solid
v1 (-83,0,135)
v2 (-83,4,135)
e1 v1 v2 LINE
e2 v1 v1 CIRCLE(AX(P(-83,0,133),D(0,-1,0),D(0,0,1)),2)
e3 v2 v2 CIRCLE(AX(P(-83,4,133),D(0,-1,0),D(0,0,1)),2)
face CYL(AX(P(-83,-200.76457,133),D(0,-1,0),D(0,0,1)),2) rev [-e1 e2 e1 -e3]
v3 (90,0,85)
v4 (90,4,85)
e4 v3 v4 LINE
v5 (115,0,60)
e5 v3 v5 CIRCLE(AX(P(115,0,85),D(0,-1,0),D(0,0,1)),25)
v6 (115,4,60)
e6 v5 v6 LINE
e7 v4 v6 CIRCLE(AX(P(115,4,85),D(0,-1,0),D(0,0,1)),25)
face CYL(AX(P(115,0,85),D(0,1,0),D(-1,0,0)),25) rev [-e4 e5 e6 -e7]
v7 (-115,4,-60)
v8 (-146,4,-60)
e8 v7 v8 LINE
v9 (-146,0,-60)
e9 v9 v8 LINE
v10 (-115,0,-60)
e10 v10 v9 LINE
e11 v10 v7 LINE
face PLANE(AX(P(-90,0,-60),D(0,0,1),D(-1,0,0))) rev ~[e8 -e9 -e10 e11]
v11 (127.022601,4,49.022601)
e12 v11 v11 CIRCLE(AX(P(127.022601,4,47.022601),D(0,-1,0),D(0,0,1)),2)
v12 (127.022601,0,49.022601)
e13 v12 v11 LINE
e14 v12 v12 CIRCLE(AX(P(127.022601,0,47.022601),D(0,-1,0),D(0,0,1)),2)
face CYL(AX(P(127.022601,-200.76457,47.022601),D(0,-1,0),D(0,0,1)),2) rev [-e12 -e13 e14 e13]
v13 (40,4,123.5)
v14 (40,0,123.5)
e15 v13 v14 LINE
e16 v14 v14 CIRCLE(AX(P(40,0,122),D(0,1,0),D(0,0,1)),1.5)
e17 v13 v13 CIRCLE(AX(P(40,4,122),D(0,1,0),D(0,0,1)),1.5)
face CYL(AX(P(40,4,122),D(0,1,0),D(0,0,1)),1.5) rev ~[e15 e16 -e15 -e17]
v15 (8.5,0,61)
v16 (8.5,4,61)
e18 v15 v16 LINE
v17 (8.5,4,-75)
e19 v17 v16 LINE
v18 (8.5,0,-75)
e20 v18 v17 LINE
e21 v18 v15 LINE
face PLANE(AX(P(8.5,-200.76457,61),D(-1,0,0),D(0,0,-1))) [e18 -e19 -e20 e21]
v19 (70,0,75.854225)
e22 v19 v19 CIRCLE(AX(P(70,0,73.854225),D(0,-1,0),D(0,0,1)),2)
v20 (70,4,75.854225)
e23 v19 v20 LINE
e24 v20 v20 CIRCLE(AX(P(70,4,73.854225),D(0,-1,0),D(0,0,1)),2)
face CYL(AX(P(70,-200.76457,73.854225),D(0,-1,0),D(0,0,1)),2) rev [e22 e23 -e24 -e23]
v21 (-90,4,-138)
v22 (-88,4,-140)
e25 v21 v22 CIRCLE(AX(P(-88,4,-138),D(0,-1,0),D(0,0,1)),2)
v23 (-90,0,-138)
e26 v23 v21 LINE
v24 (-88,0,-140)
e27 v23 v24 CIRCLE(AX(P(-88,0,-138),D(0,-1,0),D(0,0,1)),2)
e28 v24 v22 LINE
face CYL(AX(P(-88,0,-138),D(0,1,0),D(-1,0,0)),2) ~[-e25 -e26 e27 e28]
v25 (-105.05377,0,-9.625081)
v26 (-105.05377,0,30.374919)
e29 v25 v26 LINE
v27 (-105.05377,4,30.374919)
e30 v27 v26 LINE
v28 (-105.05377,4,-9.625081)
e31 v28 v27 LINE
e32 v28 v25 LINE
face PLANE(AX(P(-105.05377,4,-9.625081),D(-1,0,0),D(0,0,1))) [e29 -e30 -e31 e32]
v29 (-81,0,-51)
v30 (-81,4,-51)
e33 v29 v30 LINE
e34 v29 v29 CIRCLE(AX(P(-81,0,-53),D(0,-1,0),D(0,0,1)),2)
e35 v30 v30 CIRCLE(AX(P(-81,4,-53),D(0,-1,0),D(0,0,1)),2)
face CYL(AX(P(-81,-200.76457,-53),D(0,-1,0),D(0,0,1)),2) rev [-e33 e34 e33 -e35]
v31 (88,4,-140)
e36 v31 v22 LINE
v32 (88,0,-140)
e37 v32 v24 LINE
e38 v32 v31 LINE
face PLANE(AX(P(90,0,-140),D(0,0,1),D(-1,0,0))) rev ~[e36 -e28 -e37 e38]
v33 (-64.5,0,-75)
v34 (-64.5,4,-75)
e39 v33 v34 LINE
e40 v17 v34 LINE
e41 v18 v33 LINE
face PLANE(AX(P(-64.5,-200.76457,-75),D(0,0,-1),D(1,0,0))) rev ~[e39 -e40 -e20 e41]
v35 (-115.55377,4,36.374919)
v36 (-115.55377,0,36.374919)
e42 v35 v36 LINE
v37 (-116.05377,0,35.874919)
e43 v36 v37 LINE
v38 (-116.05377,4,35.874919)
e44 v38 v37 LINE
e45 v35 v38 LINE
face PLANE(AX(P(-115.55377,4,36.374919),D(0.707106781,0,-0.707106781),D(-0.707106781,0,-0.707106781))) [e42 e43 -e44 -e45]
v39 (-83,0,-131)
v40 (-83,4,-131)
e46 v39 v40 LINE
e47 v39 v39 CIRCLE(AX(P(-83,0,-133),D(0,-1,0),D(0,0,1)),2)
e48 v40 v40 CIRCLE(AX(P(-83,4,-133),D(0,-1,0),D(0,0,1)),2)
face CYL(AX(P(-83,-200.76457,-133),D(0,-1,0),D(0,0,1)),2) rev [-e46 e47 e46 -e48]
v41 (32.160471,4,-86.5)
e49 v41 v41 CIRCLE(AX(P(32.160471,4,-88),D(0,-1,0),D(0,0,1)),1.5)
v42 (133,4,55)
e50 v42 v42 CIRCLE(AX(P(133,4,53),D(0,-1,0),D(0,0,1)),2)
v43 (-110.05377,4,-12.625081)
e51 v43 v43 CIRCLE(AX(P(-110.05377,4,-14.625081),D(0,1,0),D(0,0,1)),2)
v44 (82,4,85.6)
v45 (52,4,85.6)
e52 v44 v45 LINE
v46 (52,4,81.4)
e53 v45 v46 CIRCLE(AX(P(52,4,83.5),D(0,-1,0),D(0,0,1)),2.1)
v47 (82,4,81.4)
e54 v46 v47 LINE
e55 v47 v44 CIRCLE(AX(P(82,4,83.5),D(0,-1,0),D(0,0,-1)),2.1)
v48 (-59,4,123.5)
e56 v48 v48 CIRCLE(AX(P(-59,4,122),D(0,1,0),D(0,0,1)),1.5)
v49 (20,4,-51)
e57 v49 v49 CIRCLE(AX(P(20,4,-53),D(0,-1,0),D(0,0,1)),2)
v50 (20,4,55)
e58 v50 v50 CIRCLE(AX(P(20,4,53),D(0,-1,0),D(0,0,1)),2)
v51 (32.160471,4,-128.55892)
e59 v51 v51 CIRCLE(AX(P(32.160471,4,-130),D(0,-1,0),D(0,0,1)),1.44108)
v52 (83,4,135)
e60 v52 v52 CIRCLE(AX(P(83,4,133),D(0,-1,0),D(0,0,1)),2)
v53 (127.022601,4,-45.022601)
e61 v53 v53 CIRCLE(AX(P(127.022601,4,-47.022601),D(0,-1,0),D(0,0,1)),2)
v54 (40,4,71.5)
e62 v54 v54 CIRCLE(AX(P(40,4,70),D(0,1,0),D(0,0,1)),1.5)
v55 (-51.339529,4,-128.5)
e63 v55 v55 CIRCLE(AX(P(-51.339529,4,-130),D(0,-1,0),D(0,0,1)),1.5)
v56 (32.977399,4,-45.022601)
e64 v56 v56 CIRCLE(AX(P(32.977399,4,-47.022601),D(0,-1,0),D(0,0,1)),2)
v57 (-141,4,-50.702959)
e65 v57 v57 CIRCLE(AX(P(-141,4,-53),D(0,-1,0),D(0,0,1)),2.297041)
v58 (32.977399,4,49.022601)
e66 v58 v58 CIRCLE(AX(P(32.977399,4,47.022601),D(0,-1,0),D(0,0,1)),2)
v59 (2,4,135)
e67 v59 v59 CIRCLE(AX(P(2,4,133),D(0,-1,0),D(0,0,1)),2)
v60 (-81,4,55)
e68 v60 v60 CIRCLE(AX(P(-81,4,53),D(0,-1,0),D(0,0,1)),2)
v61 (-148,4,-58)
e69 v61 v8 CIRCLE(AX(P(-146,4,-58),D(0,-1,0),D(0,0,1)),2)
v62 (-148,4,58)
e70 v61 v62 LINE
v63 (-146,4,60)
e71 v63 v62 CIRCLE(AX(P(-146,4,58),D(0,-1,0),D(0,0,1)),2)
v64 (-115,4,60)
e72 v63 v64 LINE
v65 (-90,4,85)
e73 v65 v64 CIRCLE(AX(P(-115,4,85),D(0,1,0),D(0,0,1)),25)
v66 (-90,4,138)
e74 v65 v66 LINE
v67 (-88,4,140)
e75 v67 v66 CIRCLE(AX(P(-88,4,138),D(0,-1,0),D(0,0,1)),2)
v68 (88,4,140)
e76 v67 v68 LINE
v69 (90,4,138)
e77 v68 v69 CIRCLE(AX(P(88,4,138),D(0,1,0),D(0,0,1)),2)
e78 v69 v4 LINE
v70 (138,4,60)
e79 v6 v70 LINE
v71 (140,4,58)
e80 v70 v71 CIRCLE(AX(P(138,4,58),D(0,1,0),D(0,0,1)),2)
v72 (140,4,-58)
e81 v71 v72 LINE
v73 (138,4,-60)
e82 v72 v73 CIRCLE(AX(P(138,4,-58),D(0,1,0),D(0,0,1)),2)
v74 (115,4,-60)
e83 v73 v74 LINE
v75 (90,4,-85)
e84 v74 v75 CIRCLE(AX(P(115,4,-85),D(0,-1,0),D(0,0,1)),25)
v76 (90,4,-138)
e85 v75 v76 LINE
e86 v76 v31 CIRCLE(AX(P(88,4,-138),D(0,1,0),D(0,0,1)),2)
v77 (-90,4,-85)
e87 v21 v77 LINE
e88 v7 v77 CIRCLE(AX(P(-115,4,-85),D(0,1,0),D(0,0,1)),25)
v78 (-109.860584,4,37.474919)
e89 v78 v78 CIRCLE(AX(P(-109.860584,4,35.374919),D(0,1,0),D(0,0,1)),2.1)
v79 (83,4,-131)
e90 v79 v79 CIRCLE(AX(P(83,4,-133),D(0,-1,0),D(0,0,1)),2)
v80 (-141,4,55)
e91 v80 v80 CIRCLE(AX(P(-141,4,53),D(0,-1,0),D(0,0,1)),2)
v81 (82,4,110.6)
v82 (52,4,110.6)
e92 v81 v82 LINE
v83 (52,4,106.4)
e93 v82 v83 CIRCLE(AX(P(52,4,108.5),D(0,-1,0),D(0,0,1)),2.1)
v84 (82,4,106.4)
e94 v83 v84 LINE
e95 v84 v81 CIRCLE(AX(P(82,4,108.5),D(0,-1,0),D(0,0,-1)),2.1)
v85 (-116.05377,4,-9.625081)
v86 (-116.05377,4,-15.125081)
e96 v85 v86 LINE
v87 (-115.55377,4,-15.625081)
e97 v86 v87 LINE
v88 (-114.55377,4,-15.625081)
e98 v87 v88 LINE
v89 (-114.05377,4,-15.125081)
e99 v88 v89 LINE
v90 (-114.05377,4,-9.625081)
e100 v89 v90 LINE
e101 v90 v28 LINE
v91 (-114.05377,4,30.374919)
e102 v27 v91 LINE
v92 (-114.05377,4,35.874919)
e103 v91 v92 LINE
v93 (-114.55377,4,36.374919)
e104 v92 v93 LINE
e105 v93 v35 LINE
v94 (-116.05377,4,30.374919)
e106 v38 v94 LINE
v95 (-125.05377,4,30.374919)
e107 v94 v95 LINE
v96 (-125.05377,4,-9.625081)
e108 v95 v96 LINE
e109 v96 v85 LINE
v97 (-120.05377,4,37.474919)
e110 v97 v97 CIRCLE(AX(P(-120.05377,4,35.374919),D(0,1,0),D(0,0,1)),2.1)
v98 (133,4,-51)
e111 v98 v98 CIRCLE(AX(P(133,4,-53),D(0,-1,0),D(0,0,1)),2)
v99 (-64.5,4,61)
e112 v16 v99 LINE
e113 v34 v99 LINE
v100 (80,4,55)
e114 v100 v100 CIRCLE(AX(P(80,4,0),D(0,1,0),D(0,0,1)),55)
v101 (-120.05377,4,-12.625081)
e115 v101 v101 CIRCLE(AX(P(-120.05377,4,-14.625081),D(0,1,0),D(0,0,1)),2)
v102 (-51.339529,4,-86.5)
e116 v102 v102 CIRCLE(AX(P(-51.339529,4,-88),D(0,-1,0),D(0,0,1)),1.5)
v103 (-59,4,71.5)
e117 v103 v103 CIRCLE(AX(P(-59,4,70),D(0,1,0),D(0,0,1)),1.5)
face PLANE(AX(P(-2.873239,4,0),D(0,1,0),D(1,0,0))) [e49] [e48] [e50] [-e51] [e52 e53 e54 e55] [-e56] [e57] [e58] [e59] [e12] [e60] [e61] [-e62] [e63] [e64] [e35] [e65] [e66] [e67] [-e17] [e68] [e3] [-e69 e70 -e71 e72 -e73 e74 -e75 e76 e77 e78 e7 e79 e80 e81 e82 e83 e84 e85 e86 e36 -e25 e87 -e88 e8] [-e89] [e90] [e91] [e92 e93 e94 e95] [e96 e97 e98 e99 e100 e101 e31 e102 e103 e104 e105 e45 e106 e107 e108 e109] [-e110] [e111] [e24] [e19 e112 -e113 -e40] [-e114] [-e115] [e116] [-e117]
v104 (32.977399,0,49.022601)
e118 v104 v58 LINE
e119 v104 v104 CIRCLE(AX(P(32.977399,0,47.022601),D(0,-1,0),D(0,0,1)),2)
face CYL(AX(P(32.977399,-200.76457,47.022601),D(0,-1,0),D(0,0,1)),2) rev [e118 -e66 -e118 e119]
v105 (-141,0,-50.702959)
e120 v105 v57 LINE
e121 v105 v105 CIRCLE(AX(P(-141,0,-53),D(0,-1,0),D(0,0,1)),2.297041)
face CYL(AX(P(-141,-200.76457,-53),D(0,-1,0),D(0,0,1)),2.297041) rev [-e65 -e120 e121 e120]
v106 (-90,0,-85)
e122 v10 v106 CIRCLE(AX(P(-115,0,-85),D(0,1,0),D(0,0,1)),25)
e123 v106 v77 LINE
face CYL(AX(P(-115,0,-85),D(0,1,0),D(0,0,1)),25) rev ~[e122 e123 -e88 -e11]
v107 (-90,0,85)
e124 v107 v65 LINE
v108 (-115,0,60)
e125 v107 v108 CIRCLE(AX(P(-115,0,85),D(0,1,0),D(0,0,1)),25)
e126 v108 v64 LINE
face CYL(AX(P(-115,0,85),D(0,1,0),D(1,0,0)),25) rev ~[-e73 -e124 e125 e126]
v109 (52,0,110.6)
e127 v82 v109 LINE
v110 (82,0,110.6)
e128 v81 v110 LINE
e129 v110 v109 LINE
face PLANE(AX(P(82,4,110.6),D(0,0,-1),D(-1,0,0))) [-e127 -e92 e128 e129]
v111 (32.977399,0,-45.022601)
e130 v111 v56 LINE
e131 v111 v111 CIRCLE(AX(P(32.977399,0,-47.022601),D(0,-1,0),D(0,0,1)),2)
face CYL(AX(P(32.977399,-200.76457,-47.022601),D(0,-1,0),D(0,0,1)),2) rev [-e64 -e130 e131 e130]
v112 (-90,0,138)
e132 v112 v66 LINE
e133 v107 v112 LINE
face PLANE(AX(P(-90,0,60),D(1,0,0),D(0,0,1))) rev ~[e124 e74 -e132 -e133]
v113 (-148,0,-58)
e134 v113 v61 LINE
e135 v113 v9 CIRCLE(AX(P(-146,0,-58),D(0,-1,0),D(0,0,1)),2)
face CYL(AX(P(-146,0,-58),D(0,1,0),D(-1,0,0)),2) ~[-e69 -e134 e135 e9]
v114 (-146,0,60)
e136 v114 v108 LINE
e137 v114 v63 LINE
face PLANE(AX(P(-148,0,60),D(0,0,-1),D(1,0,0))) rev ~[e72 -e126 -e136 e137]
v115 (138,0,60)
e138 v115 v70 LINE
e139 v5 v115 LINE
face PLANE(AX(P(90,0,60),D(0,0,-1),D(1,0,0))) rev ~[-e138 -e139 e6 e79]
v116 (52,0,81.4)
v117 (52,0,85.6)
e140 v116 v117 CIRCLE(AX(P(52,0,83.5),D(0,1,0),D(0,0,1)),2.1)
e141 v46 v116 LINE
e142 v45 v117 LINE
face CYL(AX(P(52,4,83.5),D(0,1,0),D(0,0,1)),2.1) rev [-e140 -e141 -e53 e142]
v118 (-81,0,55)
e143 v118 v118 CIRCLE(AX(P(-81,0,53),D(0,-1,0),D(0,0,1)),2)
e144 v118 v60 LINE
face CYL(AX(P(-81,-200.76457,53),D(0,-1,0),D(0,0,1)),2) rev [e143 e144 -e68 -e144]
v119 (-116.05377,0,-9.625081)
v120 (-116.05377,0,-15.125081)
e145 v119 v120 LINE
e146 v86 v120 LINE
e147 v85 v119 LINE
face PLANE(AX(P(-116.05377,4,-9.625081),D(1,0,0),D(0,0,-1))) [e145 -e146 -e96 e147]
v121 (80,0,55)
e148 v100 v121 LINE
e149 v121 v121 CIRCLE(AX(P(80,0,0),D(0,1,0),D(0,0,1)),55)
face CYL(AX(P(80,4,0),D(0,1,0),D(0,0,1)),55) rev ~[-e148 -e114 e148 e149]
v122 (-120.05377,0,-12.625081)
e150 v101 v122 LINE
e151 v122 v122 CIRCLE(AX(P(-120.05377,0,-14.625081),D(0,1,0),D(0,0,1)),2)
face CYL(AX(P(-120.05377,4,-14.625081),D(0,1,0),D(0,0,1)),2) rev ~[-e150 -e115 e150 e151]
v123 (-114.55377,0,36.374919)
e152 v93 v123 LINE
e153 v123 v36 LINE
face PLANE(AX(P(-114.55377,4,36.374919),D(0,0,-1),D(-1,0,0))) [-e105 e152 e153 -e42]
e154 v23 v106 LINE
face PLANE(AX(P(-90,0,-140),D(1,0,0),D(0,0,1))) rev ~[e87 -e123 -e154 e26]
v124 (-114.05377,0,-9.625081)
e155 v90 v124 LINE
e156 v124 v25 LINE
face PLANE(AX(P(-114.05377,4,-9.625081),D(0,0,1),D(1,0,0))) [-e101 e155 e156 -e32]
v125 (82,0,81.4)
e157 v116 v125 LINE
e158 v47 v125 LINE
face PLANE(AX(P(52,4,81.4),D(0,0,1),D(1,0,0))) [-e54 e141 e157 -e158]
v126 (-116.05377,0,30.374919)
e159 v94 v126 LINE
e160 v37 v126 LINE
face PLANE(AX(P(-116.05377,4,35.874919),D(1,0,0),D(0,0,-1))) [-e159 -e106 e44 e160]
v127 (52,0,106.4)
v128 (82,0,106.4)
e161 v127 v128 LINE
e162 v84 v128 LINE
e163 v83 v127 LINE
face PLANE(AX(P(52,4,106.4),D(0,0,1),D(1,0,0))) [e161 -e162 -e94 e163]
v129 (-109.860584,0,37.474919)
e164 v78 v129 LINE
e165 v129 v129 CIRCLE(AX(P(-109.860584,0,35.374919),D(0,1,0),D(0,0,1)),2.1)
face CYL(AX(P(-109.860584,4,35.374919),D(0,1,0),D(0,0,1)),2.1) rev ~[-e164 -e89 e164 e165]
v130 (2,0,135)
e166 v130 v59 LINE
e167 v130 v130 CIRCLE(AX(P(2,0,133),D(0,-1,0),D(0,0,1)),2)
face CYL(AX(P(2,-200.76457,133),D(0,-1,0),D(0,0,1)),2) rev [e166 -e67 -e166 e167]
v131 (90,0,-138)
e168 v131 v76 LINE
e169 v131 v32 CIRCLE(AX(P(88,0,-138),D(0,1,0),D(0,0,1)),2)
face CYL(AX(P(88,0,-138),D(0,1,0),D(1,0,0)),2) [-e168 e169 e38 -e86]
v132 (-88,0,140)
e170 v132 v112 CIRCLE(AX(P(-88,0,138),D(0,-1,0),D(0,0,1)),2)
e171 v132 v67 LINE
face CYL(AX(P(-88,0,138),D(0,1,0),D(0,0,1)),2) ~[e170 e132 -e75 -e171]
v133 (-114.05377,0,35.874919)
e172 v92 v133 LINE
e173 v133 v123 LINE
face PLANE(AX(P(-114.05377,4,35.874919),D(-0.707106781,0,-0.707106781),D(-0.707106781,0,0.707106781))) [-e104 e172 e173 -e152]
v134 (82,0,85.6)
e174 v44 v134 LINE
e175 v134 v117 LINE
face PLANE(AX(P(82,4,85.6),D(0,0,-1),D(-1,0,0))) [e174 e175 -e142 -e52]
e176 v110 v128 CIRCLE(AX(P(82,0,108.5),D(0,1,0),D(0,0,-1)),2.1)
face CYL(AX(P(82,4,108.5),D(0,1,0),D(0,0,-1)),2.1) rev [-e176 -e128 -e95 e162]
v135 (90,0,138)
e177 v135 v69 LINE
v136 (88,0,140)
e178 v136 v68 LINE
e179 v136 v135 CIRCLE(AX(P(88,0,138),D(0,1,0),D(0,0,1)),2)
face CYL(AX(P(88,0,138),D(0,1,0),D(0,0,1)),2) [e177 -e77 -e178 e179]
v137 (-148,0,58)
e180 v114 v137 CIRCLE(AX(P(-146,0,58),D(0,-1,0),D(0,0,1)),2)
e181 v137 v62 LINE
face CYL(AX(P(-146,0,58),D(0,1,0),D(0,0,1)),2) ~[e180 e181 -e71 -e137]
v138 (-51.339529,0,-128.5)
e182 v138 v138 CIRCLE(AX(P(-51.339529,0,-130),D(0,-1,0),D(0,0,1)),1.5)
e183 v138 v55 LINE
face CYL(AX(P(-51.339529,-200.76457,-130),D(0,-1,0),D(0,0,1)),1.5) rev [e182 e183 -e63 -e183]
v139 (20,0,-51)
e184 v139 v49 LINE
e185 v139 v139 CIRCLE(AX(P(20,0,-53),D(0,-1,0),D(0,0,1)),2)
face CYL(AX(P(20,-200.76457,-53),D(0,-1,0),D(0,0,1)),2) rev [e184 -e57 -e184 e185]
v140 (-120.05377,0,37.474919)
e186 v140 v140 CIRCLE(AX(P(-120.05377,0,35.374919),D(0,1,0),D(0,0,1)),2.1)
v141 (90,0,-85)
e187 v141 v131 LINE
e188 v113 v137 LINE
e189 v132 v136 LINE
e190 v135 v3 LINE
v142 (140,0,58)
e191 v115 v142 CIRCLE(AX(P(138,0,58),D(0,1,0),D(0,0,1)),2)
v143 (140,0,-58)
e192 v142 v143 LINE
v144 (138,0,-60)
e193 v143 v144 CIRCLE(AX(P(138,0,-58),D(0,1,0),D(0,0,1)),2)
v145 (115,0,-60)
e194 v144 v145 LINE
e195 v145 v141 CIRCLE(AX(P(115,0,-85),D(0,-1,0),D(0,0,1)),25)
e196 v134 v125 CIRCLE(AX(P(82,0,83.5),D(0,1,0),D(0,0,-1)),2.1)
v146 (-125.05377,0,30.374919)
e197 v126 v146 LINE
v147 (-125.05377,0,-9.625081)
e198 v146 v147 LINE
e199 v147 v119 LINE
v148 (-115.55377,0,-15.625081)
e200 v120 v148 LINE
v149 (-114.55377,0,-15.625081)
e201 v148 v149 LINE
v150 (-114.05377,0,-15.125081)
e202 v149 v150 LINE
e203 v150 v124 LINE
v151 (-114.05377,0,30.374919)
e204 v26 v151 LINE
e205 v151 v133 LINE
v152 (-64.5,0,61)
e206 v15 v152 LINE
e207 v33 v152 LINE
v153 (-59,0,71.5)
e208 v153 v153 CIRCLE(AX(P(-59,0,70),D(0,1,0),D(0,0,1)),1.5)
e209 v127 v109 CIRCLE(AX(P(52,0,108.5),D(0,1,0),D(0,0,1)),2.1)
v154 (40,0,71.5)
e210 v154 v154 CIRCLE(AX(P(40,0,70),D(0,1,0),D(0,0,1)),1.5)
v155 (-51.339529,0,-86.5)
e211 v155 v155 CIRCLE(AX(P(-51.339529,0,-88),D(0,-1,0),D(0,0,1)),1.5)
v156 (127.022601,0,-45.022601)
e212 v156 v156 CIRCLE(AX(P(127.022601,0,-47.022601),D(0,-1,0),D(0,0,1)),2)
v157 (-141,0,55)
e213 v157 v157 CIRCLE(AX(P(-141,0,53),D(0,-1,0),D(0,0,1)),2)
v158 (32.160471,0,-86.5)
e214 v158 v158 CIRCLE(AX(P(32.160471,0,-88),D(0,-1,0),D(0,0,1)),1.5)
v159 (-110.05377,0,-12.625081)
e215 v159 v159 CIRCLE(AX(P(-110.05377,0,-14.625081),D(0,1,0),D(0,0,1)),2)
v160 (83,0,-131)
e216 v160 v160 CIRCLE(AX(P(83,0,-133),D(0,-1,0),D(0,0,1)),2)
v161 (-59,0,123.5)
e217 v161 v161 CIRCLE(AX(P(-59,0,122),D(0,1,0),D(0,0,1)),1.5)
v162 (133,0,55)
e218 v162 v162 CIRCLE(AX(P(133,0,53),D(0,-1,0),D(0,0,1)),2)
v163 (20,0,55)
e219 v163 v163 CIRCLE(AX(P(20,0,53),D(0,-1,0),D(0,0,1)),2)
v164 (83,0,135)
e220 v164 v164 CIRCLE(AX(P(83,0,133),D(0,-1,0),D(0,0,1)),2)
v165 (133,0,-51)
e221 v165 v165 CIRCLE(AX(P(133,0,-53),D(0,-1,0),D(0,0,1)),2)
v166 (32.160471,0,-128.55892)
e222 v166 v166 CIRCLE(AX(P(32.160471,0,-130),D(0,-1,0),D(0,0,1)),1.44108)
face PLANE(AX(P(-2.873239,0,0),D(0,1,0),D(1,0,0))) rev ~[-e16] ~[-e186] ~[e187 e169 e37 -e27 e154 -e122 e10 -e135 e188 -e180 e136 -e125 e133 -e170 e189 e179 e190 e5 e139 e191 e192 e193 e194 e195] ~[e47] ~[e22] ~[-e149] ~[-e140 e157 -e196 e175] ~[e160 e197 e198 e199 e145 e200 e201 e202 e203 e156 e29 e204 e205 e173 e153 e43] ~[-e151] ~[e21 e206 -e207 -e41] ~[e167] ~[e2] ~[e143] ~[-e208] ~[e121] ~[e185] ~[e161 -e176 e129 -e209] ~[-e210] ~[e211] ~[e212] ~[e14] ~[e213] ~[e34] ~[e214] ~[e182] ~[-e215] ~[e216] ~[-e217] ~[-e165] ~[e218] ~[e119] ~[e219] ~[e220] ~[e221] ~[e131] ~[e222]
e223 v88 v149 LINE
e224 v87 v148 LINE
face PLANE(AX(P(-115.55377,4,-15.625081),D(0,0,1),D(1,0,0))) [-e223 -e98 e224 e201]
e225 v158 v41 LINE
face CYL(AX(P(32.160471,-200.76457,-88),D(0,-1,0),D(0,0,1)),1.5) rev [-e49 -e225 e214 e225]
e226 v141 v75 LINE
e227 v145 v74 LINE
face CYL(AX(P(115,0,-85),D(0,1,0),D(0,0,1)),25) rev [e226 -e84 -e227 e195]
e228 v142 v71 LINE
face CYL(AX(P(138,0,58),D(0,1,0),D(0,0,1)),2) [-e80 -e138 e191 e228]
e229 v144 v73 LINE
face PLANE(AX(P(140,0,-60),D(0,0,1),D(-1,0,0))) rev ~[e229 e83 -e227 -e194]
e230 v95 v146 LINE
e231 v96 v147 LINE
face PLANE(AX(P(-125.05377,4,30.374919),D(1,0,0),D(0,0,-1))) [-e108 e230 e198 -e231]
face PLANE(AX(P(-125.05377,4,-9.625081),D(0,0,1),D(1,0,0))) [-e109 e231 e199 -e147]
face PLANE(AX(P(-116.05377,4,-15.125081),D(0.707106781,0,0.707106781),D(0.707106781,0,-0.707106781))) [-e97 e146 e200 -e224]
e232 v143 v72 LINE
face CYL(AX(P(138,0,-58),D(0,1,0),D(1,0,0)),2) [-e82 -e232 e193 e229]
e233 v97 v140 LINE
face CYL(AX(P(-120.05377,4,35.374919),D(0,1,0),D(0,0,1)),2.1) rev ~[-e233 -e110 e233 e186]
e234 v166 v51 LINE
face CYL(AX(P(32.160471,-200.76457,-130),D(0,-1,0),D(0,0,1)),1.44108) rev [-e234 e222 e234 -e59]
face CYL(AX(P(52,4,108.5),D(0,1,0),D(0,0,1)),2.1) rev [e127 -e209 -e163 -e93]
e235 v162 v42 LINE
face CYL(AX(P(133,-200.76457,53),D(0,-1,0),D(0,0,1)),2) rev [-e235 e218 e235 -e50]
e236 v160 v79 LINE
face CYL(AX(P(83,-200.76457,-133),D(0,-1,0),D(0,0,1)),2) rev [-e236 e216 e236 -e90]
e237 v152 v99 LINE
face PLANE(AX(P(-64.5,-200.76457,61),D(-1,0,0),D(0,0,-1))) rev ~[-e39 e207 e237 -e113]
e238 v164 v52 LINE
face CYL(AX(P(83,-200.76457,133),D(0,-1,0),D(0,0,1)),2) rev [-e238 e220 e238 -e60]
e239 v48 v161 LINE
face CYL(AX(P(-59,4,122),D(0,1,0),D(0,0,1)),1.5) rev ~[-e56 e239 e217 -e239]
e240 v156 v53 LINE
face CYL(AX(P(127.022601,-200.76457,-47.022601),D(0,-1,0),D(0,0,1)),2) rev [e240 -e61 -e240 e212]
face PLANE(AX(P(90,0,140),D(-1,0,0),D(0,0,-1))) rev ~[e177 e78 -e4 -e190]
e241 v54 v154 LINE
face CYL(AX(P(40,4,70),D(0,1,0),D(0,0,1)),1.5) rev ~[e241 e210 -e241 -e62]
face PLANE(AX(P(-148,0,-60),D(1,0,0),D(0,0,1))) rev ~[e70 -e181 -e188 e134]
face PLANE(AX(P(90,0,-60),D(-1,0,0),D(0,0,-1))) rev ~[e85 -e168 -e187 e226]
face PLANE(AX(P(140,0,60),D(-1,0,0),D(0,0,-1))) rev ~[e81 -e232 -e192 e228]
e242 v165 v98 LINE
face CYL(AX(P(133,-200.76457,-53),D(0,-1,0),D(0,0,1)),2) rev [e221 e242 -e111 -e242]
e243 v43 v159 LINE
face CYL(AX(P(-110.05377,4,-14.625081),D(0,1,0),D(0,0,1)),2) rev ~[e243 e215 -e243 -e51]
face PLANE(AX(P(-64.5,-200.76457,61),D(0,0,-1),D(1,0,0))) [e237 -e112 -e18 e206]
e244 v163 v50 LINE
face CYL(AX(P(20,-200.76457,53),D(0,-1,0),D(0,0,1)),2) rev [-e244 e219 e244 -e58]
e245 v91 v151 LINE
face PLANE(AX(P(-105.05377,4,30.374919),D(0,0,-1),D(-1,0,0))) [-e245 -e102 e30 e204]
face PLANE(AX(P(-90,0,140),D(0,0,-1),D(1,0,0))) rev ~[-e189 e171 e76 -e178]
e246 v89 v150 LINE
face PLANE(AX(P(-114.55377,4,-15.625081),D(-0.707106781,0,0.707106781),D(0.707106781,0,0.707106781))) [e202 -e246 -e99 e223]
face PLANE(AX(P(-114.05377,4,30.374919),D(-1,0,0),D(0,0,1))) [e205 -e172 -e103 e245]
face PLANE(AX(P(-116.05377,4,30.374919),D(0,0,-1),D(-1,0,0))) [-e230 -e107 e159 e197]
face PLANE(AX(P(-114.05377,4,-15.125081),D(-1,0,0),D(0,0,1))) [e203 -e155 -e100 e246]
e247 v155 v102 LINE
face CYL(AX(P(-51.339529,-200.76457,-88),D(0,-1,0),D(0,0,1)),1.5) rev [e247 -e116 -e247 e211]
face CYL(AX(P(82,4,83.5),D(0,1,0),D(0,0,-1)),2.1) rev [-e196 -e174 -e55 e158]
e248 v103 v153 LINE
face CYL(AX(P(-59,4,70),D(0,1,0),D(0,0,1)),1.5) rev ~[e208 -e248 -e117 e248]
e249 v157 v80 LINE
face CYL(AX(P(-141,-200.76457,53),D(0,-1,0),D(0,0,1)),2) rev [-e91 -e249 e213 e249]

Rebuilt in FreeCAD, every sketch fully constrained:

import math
import FreeCAD as App
import Part
import Sketcher


def edges_at(feature, points):
    """Names of the edges that pass closest to the given points."""
    edges = feature.Shape.Edges
    near = lambda p: min(range(len(edges)), key=lambda i: edges[i].distToShape(Part.Vertex(*p))[0])
    return sorted({f"Edge{near(p) + 1}" for p in points})

doc = App.newDocument("Part")
body = doc.addObject("PartDesign::Body", "Body")

sketch1 = body.newObject("Sketcher::SketchObject", "Sketch")
sketch1.AttachmentSupport = (doc.getObject("XZ_Plane"), [""])
sketch1.MapMode = "FlatFace"
sketch1.addGeometry([
    Part.LineSegment(App.Vector(-90, 140, 0), App.Vector(90, 140, 0)),
    Part.LineSegment(App.Vector(90, 140, 0), App.Vector(90, 60, 0)),
    Part.LineSegment(App.Vector(90, 60, 0), App.Vector(140, 60, 0)),
    Part.LineSegment(App.Vector(140, 60, 0), App.Vector(140, -60, 0)),
    Part.LineSegment(App.Vector(140, -60, 0), App.Vector(90, -60, 0)),
    Part.LineSegment(App.Vector(90, -60, 0), App.Vector(90, -140, 0)),
    Part.LineSegment(App.Vector(90, -140, 0), App.Vector(-90, -140, 0)),
    Part.LineSegment(App.Vector(-90, -140, 0), App.Vector(-90, -60, 0)),
    Part.LineSegment(App.Vector(-90, -60, 0), App.Vector(-148, -60, 0)),
    Part.LineSegment(App.Vector(-148, -60, 0), App.Vector(-148, 60, 0)),
    Part.LineSegment(App.Vector(-148, 60, 0), App.Vector(-90, 60, 0)),
    Part.LineSegment(App.Vector(-90, 60, 0), App.Vector(-90, 140, 0)),
], False)
sketch1.addConstraint([
    Sketcher.Constraint("Coincident", 0, 2, 1, 1),
    Sketcher.Constraint("Coincident", 1, 2, 2, 1),
    Sketcher.Constraint("Coincident", 2, 2, 3, 1),
    Sketcher.Constraint("Coincident", 3, 2, 4, 1),
    Sketcher.Constraint("Coincident", 4, 2, 5, 1),
    Sketcher.Constraint("Coincident", 5, 2, 6, 1),
    Sketcher.Constraint("Coincident", 6, 2, 7, 1),
    Sketcher.Constraint("Coincident", 7, 2, 8, 1),
    Sketcher.Constraint("Coincident", 8, 2, 9, 1),
    Sketcher.Constraint("Coincident", 9, 2, 10, 1),
    Sketcher.Constraint("Coincident", 10, 2, 11, 1),
    Sketcher.Constraint("Coincident", 11, 2, 0, 1),
    Sketcher.Constraint("Horizontal", 0),
    Sketcher.Constraint("Vertical", 1),
    Sketcher.Constraint("Horizontal", 2),
    Sketcher.Constraint("Vertical", 3),
    Sketcher.Constraint("Horizontal", 4),
    Sketcher.Constraint("Vertical", 5),
    Sketcher.Constraint("Horizontal", 6),
    Sketcher.Constraint("Vertical", 7),
    Sketcher.Constraint("Horizontal", 8),
    Sketcher.Constraint("Vertical", 9),
    Sketcher.Constraint("Horizontal", 10),
    Sketcher.Constraint("Vertical", 11),
    Sketcher.Constraint("Symmetric", 0, 2, 6, 2, -1, 1),
    Sketcher.Constraint("Symmetric", 4, 2, 10, 2, -1, 1),
    Sketcher.Constraint("Symmetric", 4, 2, 7, 2, -2),
    Sketcher.Constraint("Horizontal", 2, 2, 9, 2),
    Sketcher.Constraint("DistanceX", 0, 1, 0, 2, 180.0),
    Sketcher.Constraint("DistanceX", 2, 1, 2, 2, 50.0),
    Sketcher.Constraint("DistanceX", 8, 2, 8, 1, 58.0),
    Sketcher.Constraint("DistanceY", 1, 2, 1, 1, 80.0),
    Sketcher.Constraint("DistanceY", 3, 2, 3, 1, 120.0),
])
pad1 = body.newObject("PartDesign::Pad", "Pad")
pad1.Profile = sketch1
pad1.Length = 4
pad1.Reversed = True

sketch2 = body.newObject("Sketcher::SketchObject", "Sketch001")
sketch2.AttachmentSupport = (doc.getObject("XZ_Plane"), [""])
sketch2.MapMode = "FlatFace"
sketch2.AttachmentOffset = App.Placement(App.Vector(0, 0, -4), App.Rotation())
sketch2.addGeometry([
    Part.Circle(App.Vector(-83, 133, 0), App.Vector(0, 0, 1), 2),
    Part.Circle(App.Vector(83, 133, 0), App.Vector(0, 0, 1), 2),
    Part.Circle(App.Vector(-83, -133, 0), App.Vector(0, 0, 1), 2),
    Part.Circle(App.Vector(83, -133, 0), App.Vector(0, 0, 1), 2),
    Part.Circle(App.Vector(133, -53, 0), App.Vector(0, 0, 1), 2),
    Part.Circle(App.Vector(133, 53, 0), App.Vector(0, 0, 1), 2),
    Part.Circle(App.Vector(33, -47, 0), App.Vector(0, 0, 1), 2),
    Part.Circle(App.Vector(127, -47, 0), App.Vector(0, 0, 1), 2),
    Part.Circle(App.Vector(127, 47, 0), App.Vector(0, 0, 1), 2),
    Part.Circle(App.Vector(33, 47, 0), App.Vector(0, 0, 1), 2),
    Part.Circle(App.Vector(-141, -53, 0), App.Vector(0, 0, 1), 2.3),
    Part.Circle(App.Vector(-141, 53, 0), App.Vector(0, 0, 1), 2),
    Part.Circle(App.Vector(20, 53, 0), App.Vector(0, 0, 1), 2),
    Part.Circle(App.Vector(20, -53, 0), App.Vector(0, 0, 1), 2),
    Part.Circle(App.Vector(-81, -53, 0), App.Vector(0, 0, 1), 2),
    Part.Circle(App.Vector(-81, 53, 0), App.Vector(0, 0, 1), 2),
    Part.Circle(App.Vector(70, 73.9, 0), App.Vector(0, 0, 1), 2),
    Part.Circle(App.Vector(2, 133, 0), App.Vector(0, 0, 1), 2),
], False)
sketch2.addConstraint([
    Sketcher.Constraint("Equal", 0, 1),
    Sketcher.Constraint("Equal", 1, 2),
    Sketcher.Constraint("Equal", 2, 3),
    Sketcher.Constraint("Equal", 3, 4),
    Sketcher.Constraint("Equal", 4, 5),
    Sketcher.Constraint("Equal", 5, 6),
    Sketcher.Constraint("Equal", 6, 7),
    Sketcher.Constraint("Equal", 7, 8),
    Sketcher.Constraint("Equal", 8, 9),
    Sketcher.Constraint("Equal", 9, 11),
    Sketcher.Constraint("Equal", 11, 12),
    Sketcher.Constraint("Equal", 12, 13),
    Sketcher.Constraint("Equal", 13, 14),
    Sketcher.Constraint("Equal", 14, 15),
    Sketcher.Constraint("Equal", 15, 16),
    Sketcher.Constraint("Equal", 16, 17),
    Sketcher.Constraint("Symmetric", 1, 3, 2, 3, -1, 1),
    Sketcher.Constraint("Symmetric", 0, 3, 3, 3, -1, 1),
    Sketcher.Constraint("Symmetric", 0, 3, 1, 3, -2),
    Sketcher.Constraint("Symmetric", 4, 3, 5, 3, -1),
    Sketcher.Constraint("Symmetric", 7, 3, 8, 3, -1),
    Sketcher.Constraint("Symmetric", 6, 3, 9, 3, -1),
    Sketcher.Constraint("Symmetric", 10, 3, 11, 3, -1),
    Sketcher.Constraint("Symmetric", 12, 3, 13, 3, -1),
    Sketcher.Constraint("Symmetric", 14, 3, 15, 3, -1),
    Sketcher.Constraint("Horizontal", 6, 3, 7, 3),
    Sketcher.Constraint("Horizontal", 4, 3, 10, 3),
    Sketcher.Constraint("Horizontal", 11, 3, 12, 3),
    Sketcher.Constraint("Horizontal", 13, 3, 14, 3),
    Sketcher.Constraint("Horizontal", 1, 3, 17, 3),
    Sketcher.Constraint("Diameter", 0, 4.0),
    Sketcher.Constraint("DistanceX", 0, 3, -1, 1, 83.0),
    Sketcher.Constraint("DistanceY", -1, 1, 0, 3, 133.0),
    Sketcher.Constraint("DistanceX", -1, 1, 4, 3, 133.0),
    Sketcher.Constraint("DistanceY", 4, 3, -1, 1, 53.0),
    Sketcher.Constraint("DistanceX", 10, 3, -1, 1, 141.0),
    Sketcher.Constraint("DistanceX", -1, 1, 12, 3, 20.0),
    Sketcher.Constraint("DistanceX", 14, 3, -1, 1, 81.0),
    Sketcher.Constraint("DistanceX", -1, 1, 16, 3, 70.0),
    Sketcher.Constraint("DistanceX", -1, 1, 17, 3, 2.0),
    Sketcher.Constraint("Diameter", 10, 4.594083),
    Sketcher.Constraint("DistanceX", -1, 1, 6, 3, 32.977399),
    Sketcher.Constraint("DistanceY", 6, 3, -1, 1, 47.022601),
    Sketcher.Constraint("DistanceX", -1, 1, 7, 3, 127.022601),
    Sketcher.Constraint("DistanceY", -1, 1, 16, 3, 73.854225),
])
pocket1 = body.newObject("PartDesign::Pocket", "Pocket")
pocket1.Profile = sketch2
pocket1.Type = "ThroughAll"
pocket1.Midplane = True

sketch3 = body.newObject("Sketcher::SketchObject", "Sketch002")
sketch3.AttachmentSupport = (doc.getObject("XZ_Plane"), [""])
sketch3.MapMode = "FlatFace"
sketch3.AttachmentOffset = App.Placement(App.Vector(0, 0, -4), App.Rotation())
sketch3.addGeometry(Part.Circle(App.Vector(80, 0, 0), App.Vector(0, 0, 1), 55), False)
sketch3.addConstraint([
    Sketcher.Constraint("PointOnObject", 0, 3, -1),
    Sketcher.Constraint("Diameter", 0, 110.0),
    Sketcher.Constraint("DistanceX", -1, 1, 0, 3, 80.0),
])
pocket2 = body.newObject("PartDesign::Pocket", "Pocket001")
pocket2.Profile = sketch3
pocket2.Length = 10
pocket2.Reversed = True

sketch4 = body.newObject("Sketcher::SketchObject", "Sketch003")
sketch4.AttachmentSupport = (doc.getObject("XZ_Plane"), [""])
sketch4.MapMode = "FlatFace"
sketch4.AttachmentOffset = App.Placement(App.Vector(0, 0, -4), App.Rotation())
sketch4.addGeometry([
    Part.Circle(App.Vector(-110.1, -14.6, 0), App.Vector(0, 0, 1), 2),
    Part.Circle(App.Vector(-120.1, -14.6, 0), App.Vector(0, 0, 1), 2),
    Part.Circle(App.Vector(-120.1, 35.4, 0), App.Vector(0, 0, 1), 2.1),
    Part.Circle(App.Vector(-109.9, 35.4, 0), App.Vector(0, 0, 1), 2.1),
    Part.LineSegment(App.Vector(-105.1, 30.4, 0), App.Vector(-105.1, -9.6, 0)),
    Part.LineSegment(App.Vector(-105.1, -9.6, 0), App.Vector(-114.1, -9.6, 0)),
    Part.LineSegment(App.Vector(-114.1, -9.6, 0), App.Vector(-114.1, -15.1, 0)),
    Part.LineSegment(App.Vector(-114.1, -15.1, 0), App.Vector(-114.6, -15.6, 0)),
    Part.LineSegment(App.Vector(-114.6, -15.6, 0), App.Vector(-115.6, -15.6, 0)),
    Part.LineSegment(App.Vector(-115.6, -15.6, 0), App.Vector(-116.1, -15.1, 0)),
    Part.LineSegment(App.Vector(-116.1, -15.1, 0), App.Vector(-116.1, -9.6, 0)),
    Part.LineSegment(App.Vector(-116.1, -9.6, 0), App.Vector(-125.1, -9.6, 0)),
    Part.LineSegment(App.Vector(-125.1, -9.6, 0), App.Vector(-125.1, 30.4, 0)),
    Part.LineSegment(App.Vector(-125.1, 30.4, 0), App.Vector(-116.1, 30.4, 0)),
    Part.LineSegment(App.Vector(-116.1, 30.4, 0), App.Vector(-116.1, 35.9, 0)),
    Part.LineSegment(App.Vector(-116.1, 35.9, 0), App.Vector(-115.6, 36.4, 0)),
    Part.LineSegment(App.Vector(-115.6, 36.4, 0), App.Vector(-114.6, 36.4, 0)),
    Part.LineSegment(App.Vector(-114.6, 36.4, 0), App.Vector(-114.1, 35.9, 0)),
    Part.LineSegment(App.Vector(-114.1, 35.9, 0), App.Vector(-114.1, 30.4, 0)),
    Part.LineSegment(App.Vector(-114.1, 30.4, 0), App.Vector(-105.1, 30.4, 0)),
], False)
sketch4.addConstraint([
    Sketcher.Constraint("Coincident", 4, 2, 5, 1),
    Sketcher.Constraint("Coincident", 5, 2, 6, 1),
    Sketcher.Constraint("Coincident", 6, 2, 7, 1),
    Sketcher.Constraint("Coincident", 7, 2, 8, 1),
    Sketcher.Constraint("Coincident", 8, 2, 9, 1),
    Sketcher.Constraint("Coincident", 9, 2, 10, 1),
    Sketcher.Constraint("Coincident", 10, 2, 11, 1),
    Sketcher.Constraint("Coincident", 11, 2, 12, 1),
    Sketcher.Constraint("Coincident", 12, 2, 13, 1),
    Sketcher.Constraint("Coincident", 13, 2, 14, 1),
    Sketcher.Constraint("Coincident", 14, 2, 15, 1),
    Sketcher.Constraint("Coincident", 15, 2, 16, 1),
    Sketcher.Constraint("Coincident", 16, 2, 17, 1),
    Sketcher.Constraint("Coincident", 17, 2, 18, 1),
    Sketcher.Constraint("Coincident", 18, 2, 19, 1),
    Sketcher.Constraint("Coincident", 19, 2, 4, 1),
    Sketcher.Constraint("Vertical", 4),
    Sketcher.Constraint("Horizontal", 5),
    Sketcher.Constraint("Vertical", 6),
    Sketcher.Constraint("Horizontal", 8),
    Sketcher.Constraint("Vertical", 10),
    Sketcher.Constraint("Horizontal", 11),
    Sketcher.Constraint("Vertical", 12),
    Sketcher.Constraint("Horizontal", 13),
    Sketcher.Constraint("Vertical", 14),
    Sketcher.Constraint("Horizontal", 16),
    Sketcher.Constraint("Vertical", 18),
    Sketcher.Constraint("Horizontal", 19),
    Sketcher.Constraint("Equal", 0, 1),
    Sketcher.Constraint("Equal", 2, 3),
    Sketcher.Constraint("Perpendicular", 7, 9),
    Sketcher.Constraint("Perpendicular", 9, 15),
    Sketcher.Constraint("Perpendicular", 15, 17),
    Sketcher.Constraint("Horizontal", 0, 3, 1, 3),
    Sketcher.Constraint("Horizontal", 2, 3, 3, 3),
    Sketcher.Constraint("Horizontal", 6, 2, 9, 2),
    Sketcher.Constraint("Horizontal", 5, 2, 10, 2),
    Sketcher.Constraint("Horizontal", 14, 2, 17, 2),
    Sketcher.Constraint("Horizontal", 13, 2, 18, 2),
    Sketcher.Constraint("Vertical", 1, 3, 2, 3),
    Sketcher.Constraint("Vertical", 10, 2, 13, 2),
    Sketcher.Constraint("Vertical", 8, 2, 15, 2),
    Sketcher.Constraint("Vertical", 7, 2, 16, 2),
    Sketcher.Constraint("Vertical", 6, 2, 17, 2),
    Sketcher.Constraint("Equal", 5, 11),
    Sketcher.Constraint("Equal", 10, 14),
    Sketcher.Constraint("Diameter", 0, 4.0),
    Sketcher.Constraint("Diameter", 2, 4.2),
    Sketcher.Constraint("DistanceX", 5, 2, 5, 1, 9.0),
    Sketcher.Constraint("DistanceX", 8, 2, 8, 1, 1.0),
    Sketcher.Constraint("DistanceY", 4, 2, 4, 1, 40.0),
    Sketcher.Constraint("DistanceY", 6, 2, 6, 1, 5.5),
    Sketcher.Constraint("DistanceX", 1, 3, 0, 3, 10.0),
    Sketcher.Constraint("DistanceY", 1, 3, 2, 3, 50.0),
    Sketcher.Constraint("DistanceX", 0, 3, 4, 2, 5.0),
    Sketcher.Constraint("DistanceY", 0, 3, 4, 2, 5.0),
    Sketcher.Constraint("DistanceY", 7, 2, 0, 3, 1.0),
    Sketcher.Constraint("DistanceX", 0, 3, -1, 1, 110.05377),
    Sketcher.Constraint("DistanceY", 0, 3, -1, 1, 14.625081),
    Sketcher.Constraint("DistanceX", 3, 3, -1, 1, 109.860584),
])
pocket3 = body.newObject("PartDesign::Pocket", "Pocket002")
pocket3.Profile = sketch4
pocket3.Type = "ThroughAll"
pocket3.Reversed = True

sketch5 = body.newObject("Sketcher::SketchObject", "Sketch004")
sketch5.AttachmentSupport = (doc.getObject("XZ_Plane"), [""])
sketch5.MapMode = "FlatFace"
sketch5.AttachmentOffset = App.Placement(App.Vector(0, 0, -4), App.Rotation())
sketch5.addGeometry([
    Part.Circle(App.Vector(40, 122, 0), App.Vector(0, 0, 1), 1.5),
    Part.Circle(App.Vector(40, 70, 0), App.Vector(0, 0, 1), 1.5),
    Part.Circle(App.Vector(-59, 122, 0), App.Vector(0, 0, 1), 1.5),
    Part.Circle(App.Vector(-59, 70, 0), App.Vector(0, 0, 1), 1.5),
], False)
sketch5.addConstraint([
    Sketcher.Constraint("Equal", 0, 1),
    Sketcher.Constraint("Equal", 1, 2),
    Sketcher.Constraint("Equal", 2, 3),
    Sketcher.Constraint("Horizontal", 0, 3, 2, 3),
    Sketcher.Constraint("Horizontal", 1, 3, 3, 3),
    Sketcher.Constraint("Vertical", 0, 3, 1, 3),
    Sketcher.Constraint("Vertical", 2, 3, 3, 3),
    Sketcher.Constraint("Diameter", 0, 3.0),
    Sketcher.Constraint("DistanceX", -1, 1, 0, 3, 40.0),
    Sketcher.Constraint("DistanceY", -1, 1, 0, 3, 122.0),
    Sketcher.Constraint("DistanceY", -1, 1, 1, 3, 70.0),
    Sketcher.Constraint("DistanceX", 2, 3, -1, 1, 59.0),
])
pocket4 = body.newObject("PartDesign::Pocket", "Pocket003")
pocket4.Profile = sketch5
pocket4.Type = "ThroughAll"
pocket4.Reversed = True

sketch6 = body.newObject("Sketcher::SketchObject", "Sketch005")
sketch6.AttachmentSupport = (doc.getObject("XZ_Plane"), [""])
sketch6.MapMode = "FlatFace"
sketch6.AttachmentOffset = App.Placement(App.Vector(0, 0, -4), App.Rotation())
sketch6.addGeometry([
    Part.LineSegment(App.Vector(52, 110.6, 0), App.Vector(82, 110.6, 0)),
    Part.ArcOfCircle(Part.Circle(App.Vector(82, 108.5, 0), App.Vector(0, 0, 1), 2.1), math.radians(-90), math.radians(90)),
    Part.LineSegment(App.Vector(82, 106.4, 0), App.Vector(52, 106.4, 0)),
    Part.ArcOfCircle(Part.Circle(App.Vector(52, 108.5, 0), App.Vector(0, 0, 1), 2.1), math.radians(90), math.radians(270)),
    Part.LineSegment(App.Vector(52, 85.6, 0), App.Vector(82, 85.6, 0)),
    Part.ArcOfCircle(Part.Circle(App.Vector(82, 83.5, 0), App.Vector(0, 0, 1), 2.1), math.radians(-90), math.radians(90)),
    Part.LineSegment(App.Vector(82, 81.4, 0), App.Vector(52, 81.4, 0)),
    Part.ArcOfCircle(Part.Circle(App.Vector(52, 83.5, 0), App.Vector(0, 0, 1), 2.1), math.radians(90), math.radians(270)),
], False)
sketch6.addConstraint([
    Sketcher.Constraint("Tangent", 0, 2, 1, 2),
    Sketcher.Constraint("Tangent", 1, 1, 2, 1),
    Sketcher.Constraint("Tangent", 2, 2, 3, 2),
    Sketcher.Constraint("Tangent", 3, 1, 0, 1),
    Sketcher.Constraint("Tangent", 4, 2, 5, 2),
    Sketcher.Constraint("Tangent", 5, 1, 6, 1),
    Sketcher.Constraint("Tangent", 6, 2, 7, 2),
    Sketcher.Constraint("Tangent", 7, 1, 4, 1),
    Sketcher.Constraint("Horizontal", 0),
    Sketcher.Constraint("Horizontal", 2),
    Sketcher.Constraint("Horizontal", 4),
    Sketcher.Constraint("Horizontal", 6),
    Sketcher.Constraint("Equal", 3, 5),
    Sketcher.Constraint("Vertical", 1, 3, 5, 3),
    Sketcher.Constraint("Vertical", 3, 3, 7, 3),
    Sketcher.Constraint("Radius", 1, 2.1),
    Sketcher.Constraint("DistanceX", 0, 1, 0, 2, 30.0),
    Sketcher.Constraint("DistanceX", -1, 1, 1, 3, 82.0),
    Sketcher.Constraint("DistanceY", 5, 3, 1, 3, 25.0),
    Sketcher.Constraint("DistanceY", -1, 1, 1, 3, 108.5),
])
pocket5 = body.newObject("PartDesign::Pocket", "Pocket004")
pocket5.Profile = sketch6
pocket5.Type = "ThroughAll"
pocket5.Reversed = True

sketch7 = body.newObject("Sketcher::SketchObject", "Sketch006")
sketch7.AttachmentSupport = (doc.getObject("XZ_Plane"), [""])
sketch7.MapMode = "FlatFace"
sketch7.AttachmentOffset = App.Placement(App.Vector(0, 0, -4), App.Rotation())
sketch7.addGeometry([
    Part.LineSegment(App.Vector(-64, -75, 0), App.Vector(-64, 61, 0)),
    Part.LineSegment(App.Vector(-64, 61, 0), App.Vector(8, 61, 0)),
    Part.LineSegment(App.Vector(8, 61, 0), App.Vector(8, -75, 0)),
    Part.LineSegment(App.Vector(8, -75, 0), App.Vector(-64, -75, 0)),
], False)
sketch7.addConstraint([
    Sketcher.Constraint("Coincident", 0, 2, 1, 1),
    Sketcher.Constraint("Coincident", 1, 2, 2, 1),
    Sketcher.Constraint("Coincident", 2, 2, 3, 1),
    Sketcher.Constraint("Coincident", 3, 2, 0, 1),
    Sketcher.Constraint("Vertical", 0),
    Sketcher.Constraint("Horizontal", 1),
    Sketcher.Constraint("Vertical", 2),
    Sketcher.Constraint("Horizontal", 3),
    Sketcher.Constraint("DistanceX", 1, 1, 1, 2, 73.0),
    Sketcher.Constraint("DistanceY", 0, 1, 0, 2, 136.0),
    Sketcher.Constraint("DistanceY", -1, 1, 0, 2, 61.0),
    Sketcher.Constraint("DistanceX", 0, 2, -1, 1, 64.5),
])
pocket6 = body.newObject("PartDesign::Pocket", "Pocket005")
pocket6.Profile = sketch7
pocket6.Type = "ThroughAll"
pocket6.Midplane = True

sketch8 = body.newObject("Sketcher::SketchObject", "Sketch007")
sketch8.AttachmentSupport = (doc.getObject("XZ_Plane"), [""])
sketch8.MapMode = "FlatFace"
sketch8.AttachmentOffset = App.Placement(App.Vector(0, 0, -4), App.Rotation())
sketch8.addGeometry([
    Part.Circle(App.Vector(-51.3, -88, 0), App.Vector(0, 0, 1), 1.5),
    Part.Circle(App.Vector(-51.3, -130, 0), App.Vector(0, 0, 1), 1.5),
    Part.Circle(App.Vector(32.2, -130, 0), App.Vector(0, 0, 1), 1.4),
    Part.Circle(App.Vector(32.2, -88, 0), App.Vector(0, 0, 1), 1.5),
], False)
sketch8.addConstraint([
    Sketcher.Constraint("Equal", 0, 1),
    Sketcher.Constraint("Equal", 1, 3),
    Sketcher.Constraint("Horizontal", 1, 3, 2, 3),
    Sketcher.Constraint("Horizontal", 0, 3, 3, 3),
    Sketcher.Constraint("Vertical", 0, 3, 1, 3),
    Sketcher.Constraint("Vertical", 2, 3, 3, 3),
    Sketcher.Constraint("Diameter", 0, 3.0),
    Sketcher.Constraint("DistanceY", 0, 3, -1, 1, 88.0),
    Sketcher.Constraint("DistanceY", 1, 3, -1, 1, 130.0),
    Sketcher.Constraint("DistanceX", 1, 3, 2, 3, 83.5),
    Sketcher.Constraint("Diameter", 2, 2.88216),
    Sketcher.Constraint("DistanceX", 0, 3, -1, 1, 51.339529),
])
pocket7 = body.newObject("PartDesign::Pocket", "Pocket006")
pocket7.Profile = sketch8
pocket7.Type = "ThroughAll"
pocket7.Midplane = True
doc.recompute()

fillet = body.newObject("PartDesign::Fillet", "Fillet")
fillet.Base = (pocket7, edges_at(pocket7, [
    (-148, 2, -60),
    (-90, 2, -140),
    (90, 2, -140),
    (140, 2, -60),
    (140, 2, 60),
    (90, 2, 140),
    (-90, 2, 140),
    (-148, 2, 60),
]))
fillet.Radius = 2
doc.recompute()

fillet2 = body.newObject("PartDesign::Fillet", "Fillet001")
fillet2.Base = (fillet, edges_at(fillet, [(-90, 2, 60)]))
fillet2.Radius = 25
doc.recompute()

fillet3 = body.newObject("PartDesign::Fillet", "Fillet002")
fillet3.Base = (fillet2, edges_at(fillet2, [(-90, 2, -60), (90, 2, -60), (90, 2, 60)]))
fillet3.Radius = 25

doc.recompute()
